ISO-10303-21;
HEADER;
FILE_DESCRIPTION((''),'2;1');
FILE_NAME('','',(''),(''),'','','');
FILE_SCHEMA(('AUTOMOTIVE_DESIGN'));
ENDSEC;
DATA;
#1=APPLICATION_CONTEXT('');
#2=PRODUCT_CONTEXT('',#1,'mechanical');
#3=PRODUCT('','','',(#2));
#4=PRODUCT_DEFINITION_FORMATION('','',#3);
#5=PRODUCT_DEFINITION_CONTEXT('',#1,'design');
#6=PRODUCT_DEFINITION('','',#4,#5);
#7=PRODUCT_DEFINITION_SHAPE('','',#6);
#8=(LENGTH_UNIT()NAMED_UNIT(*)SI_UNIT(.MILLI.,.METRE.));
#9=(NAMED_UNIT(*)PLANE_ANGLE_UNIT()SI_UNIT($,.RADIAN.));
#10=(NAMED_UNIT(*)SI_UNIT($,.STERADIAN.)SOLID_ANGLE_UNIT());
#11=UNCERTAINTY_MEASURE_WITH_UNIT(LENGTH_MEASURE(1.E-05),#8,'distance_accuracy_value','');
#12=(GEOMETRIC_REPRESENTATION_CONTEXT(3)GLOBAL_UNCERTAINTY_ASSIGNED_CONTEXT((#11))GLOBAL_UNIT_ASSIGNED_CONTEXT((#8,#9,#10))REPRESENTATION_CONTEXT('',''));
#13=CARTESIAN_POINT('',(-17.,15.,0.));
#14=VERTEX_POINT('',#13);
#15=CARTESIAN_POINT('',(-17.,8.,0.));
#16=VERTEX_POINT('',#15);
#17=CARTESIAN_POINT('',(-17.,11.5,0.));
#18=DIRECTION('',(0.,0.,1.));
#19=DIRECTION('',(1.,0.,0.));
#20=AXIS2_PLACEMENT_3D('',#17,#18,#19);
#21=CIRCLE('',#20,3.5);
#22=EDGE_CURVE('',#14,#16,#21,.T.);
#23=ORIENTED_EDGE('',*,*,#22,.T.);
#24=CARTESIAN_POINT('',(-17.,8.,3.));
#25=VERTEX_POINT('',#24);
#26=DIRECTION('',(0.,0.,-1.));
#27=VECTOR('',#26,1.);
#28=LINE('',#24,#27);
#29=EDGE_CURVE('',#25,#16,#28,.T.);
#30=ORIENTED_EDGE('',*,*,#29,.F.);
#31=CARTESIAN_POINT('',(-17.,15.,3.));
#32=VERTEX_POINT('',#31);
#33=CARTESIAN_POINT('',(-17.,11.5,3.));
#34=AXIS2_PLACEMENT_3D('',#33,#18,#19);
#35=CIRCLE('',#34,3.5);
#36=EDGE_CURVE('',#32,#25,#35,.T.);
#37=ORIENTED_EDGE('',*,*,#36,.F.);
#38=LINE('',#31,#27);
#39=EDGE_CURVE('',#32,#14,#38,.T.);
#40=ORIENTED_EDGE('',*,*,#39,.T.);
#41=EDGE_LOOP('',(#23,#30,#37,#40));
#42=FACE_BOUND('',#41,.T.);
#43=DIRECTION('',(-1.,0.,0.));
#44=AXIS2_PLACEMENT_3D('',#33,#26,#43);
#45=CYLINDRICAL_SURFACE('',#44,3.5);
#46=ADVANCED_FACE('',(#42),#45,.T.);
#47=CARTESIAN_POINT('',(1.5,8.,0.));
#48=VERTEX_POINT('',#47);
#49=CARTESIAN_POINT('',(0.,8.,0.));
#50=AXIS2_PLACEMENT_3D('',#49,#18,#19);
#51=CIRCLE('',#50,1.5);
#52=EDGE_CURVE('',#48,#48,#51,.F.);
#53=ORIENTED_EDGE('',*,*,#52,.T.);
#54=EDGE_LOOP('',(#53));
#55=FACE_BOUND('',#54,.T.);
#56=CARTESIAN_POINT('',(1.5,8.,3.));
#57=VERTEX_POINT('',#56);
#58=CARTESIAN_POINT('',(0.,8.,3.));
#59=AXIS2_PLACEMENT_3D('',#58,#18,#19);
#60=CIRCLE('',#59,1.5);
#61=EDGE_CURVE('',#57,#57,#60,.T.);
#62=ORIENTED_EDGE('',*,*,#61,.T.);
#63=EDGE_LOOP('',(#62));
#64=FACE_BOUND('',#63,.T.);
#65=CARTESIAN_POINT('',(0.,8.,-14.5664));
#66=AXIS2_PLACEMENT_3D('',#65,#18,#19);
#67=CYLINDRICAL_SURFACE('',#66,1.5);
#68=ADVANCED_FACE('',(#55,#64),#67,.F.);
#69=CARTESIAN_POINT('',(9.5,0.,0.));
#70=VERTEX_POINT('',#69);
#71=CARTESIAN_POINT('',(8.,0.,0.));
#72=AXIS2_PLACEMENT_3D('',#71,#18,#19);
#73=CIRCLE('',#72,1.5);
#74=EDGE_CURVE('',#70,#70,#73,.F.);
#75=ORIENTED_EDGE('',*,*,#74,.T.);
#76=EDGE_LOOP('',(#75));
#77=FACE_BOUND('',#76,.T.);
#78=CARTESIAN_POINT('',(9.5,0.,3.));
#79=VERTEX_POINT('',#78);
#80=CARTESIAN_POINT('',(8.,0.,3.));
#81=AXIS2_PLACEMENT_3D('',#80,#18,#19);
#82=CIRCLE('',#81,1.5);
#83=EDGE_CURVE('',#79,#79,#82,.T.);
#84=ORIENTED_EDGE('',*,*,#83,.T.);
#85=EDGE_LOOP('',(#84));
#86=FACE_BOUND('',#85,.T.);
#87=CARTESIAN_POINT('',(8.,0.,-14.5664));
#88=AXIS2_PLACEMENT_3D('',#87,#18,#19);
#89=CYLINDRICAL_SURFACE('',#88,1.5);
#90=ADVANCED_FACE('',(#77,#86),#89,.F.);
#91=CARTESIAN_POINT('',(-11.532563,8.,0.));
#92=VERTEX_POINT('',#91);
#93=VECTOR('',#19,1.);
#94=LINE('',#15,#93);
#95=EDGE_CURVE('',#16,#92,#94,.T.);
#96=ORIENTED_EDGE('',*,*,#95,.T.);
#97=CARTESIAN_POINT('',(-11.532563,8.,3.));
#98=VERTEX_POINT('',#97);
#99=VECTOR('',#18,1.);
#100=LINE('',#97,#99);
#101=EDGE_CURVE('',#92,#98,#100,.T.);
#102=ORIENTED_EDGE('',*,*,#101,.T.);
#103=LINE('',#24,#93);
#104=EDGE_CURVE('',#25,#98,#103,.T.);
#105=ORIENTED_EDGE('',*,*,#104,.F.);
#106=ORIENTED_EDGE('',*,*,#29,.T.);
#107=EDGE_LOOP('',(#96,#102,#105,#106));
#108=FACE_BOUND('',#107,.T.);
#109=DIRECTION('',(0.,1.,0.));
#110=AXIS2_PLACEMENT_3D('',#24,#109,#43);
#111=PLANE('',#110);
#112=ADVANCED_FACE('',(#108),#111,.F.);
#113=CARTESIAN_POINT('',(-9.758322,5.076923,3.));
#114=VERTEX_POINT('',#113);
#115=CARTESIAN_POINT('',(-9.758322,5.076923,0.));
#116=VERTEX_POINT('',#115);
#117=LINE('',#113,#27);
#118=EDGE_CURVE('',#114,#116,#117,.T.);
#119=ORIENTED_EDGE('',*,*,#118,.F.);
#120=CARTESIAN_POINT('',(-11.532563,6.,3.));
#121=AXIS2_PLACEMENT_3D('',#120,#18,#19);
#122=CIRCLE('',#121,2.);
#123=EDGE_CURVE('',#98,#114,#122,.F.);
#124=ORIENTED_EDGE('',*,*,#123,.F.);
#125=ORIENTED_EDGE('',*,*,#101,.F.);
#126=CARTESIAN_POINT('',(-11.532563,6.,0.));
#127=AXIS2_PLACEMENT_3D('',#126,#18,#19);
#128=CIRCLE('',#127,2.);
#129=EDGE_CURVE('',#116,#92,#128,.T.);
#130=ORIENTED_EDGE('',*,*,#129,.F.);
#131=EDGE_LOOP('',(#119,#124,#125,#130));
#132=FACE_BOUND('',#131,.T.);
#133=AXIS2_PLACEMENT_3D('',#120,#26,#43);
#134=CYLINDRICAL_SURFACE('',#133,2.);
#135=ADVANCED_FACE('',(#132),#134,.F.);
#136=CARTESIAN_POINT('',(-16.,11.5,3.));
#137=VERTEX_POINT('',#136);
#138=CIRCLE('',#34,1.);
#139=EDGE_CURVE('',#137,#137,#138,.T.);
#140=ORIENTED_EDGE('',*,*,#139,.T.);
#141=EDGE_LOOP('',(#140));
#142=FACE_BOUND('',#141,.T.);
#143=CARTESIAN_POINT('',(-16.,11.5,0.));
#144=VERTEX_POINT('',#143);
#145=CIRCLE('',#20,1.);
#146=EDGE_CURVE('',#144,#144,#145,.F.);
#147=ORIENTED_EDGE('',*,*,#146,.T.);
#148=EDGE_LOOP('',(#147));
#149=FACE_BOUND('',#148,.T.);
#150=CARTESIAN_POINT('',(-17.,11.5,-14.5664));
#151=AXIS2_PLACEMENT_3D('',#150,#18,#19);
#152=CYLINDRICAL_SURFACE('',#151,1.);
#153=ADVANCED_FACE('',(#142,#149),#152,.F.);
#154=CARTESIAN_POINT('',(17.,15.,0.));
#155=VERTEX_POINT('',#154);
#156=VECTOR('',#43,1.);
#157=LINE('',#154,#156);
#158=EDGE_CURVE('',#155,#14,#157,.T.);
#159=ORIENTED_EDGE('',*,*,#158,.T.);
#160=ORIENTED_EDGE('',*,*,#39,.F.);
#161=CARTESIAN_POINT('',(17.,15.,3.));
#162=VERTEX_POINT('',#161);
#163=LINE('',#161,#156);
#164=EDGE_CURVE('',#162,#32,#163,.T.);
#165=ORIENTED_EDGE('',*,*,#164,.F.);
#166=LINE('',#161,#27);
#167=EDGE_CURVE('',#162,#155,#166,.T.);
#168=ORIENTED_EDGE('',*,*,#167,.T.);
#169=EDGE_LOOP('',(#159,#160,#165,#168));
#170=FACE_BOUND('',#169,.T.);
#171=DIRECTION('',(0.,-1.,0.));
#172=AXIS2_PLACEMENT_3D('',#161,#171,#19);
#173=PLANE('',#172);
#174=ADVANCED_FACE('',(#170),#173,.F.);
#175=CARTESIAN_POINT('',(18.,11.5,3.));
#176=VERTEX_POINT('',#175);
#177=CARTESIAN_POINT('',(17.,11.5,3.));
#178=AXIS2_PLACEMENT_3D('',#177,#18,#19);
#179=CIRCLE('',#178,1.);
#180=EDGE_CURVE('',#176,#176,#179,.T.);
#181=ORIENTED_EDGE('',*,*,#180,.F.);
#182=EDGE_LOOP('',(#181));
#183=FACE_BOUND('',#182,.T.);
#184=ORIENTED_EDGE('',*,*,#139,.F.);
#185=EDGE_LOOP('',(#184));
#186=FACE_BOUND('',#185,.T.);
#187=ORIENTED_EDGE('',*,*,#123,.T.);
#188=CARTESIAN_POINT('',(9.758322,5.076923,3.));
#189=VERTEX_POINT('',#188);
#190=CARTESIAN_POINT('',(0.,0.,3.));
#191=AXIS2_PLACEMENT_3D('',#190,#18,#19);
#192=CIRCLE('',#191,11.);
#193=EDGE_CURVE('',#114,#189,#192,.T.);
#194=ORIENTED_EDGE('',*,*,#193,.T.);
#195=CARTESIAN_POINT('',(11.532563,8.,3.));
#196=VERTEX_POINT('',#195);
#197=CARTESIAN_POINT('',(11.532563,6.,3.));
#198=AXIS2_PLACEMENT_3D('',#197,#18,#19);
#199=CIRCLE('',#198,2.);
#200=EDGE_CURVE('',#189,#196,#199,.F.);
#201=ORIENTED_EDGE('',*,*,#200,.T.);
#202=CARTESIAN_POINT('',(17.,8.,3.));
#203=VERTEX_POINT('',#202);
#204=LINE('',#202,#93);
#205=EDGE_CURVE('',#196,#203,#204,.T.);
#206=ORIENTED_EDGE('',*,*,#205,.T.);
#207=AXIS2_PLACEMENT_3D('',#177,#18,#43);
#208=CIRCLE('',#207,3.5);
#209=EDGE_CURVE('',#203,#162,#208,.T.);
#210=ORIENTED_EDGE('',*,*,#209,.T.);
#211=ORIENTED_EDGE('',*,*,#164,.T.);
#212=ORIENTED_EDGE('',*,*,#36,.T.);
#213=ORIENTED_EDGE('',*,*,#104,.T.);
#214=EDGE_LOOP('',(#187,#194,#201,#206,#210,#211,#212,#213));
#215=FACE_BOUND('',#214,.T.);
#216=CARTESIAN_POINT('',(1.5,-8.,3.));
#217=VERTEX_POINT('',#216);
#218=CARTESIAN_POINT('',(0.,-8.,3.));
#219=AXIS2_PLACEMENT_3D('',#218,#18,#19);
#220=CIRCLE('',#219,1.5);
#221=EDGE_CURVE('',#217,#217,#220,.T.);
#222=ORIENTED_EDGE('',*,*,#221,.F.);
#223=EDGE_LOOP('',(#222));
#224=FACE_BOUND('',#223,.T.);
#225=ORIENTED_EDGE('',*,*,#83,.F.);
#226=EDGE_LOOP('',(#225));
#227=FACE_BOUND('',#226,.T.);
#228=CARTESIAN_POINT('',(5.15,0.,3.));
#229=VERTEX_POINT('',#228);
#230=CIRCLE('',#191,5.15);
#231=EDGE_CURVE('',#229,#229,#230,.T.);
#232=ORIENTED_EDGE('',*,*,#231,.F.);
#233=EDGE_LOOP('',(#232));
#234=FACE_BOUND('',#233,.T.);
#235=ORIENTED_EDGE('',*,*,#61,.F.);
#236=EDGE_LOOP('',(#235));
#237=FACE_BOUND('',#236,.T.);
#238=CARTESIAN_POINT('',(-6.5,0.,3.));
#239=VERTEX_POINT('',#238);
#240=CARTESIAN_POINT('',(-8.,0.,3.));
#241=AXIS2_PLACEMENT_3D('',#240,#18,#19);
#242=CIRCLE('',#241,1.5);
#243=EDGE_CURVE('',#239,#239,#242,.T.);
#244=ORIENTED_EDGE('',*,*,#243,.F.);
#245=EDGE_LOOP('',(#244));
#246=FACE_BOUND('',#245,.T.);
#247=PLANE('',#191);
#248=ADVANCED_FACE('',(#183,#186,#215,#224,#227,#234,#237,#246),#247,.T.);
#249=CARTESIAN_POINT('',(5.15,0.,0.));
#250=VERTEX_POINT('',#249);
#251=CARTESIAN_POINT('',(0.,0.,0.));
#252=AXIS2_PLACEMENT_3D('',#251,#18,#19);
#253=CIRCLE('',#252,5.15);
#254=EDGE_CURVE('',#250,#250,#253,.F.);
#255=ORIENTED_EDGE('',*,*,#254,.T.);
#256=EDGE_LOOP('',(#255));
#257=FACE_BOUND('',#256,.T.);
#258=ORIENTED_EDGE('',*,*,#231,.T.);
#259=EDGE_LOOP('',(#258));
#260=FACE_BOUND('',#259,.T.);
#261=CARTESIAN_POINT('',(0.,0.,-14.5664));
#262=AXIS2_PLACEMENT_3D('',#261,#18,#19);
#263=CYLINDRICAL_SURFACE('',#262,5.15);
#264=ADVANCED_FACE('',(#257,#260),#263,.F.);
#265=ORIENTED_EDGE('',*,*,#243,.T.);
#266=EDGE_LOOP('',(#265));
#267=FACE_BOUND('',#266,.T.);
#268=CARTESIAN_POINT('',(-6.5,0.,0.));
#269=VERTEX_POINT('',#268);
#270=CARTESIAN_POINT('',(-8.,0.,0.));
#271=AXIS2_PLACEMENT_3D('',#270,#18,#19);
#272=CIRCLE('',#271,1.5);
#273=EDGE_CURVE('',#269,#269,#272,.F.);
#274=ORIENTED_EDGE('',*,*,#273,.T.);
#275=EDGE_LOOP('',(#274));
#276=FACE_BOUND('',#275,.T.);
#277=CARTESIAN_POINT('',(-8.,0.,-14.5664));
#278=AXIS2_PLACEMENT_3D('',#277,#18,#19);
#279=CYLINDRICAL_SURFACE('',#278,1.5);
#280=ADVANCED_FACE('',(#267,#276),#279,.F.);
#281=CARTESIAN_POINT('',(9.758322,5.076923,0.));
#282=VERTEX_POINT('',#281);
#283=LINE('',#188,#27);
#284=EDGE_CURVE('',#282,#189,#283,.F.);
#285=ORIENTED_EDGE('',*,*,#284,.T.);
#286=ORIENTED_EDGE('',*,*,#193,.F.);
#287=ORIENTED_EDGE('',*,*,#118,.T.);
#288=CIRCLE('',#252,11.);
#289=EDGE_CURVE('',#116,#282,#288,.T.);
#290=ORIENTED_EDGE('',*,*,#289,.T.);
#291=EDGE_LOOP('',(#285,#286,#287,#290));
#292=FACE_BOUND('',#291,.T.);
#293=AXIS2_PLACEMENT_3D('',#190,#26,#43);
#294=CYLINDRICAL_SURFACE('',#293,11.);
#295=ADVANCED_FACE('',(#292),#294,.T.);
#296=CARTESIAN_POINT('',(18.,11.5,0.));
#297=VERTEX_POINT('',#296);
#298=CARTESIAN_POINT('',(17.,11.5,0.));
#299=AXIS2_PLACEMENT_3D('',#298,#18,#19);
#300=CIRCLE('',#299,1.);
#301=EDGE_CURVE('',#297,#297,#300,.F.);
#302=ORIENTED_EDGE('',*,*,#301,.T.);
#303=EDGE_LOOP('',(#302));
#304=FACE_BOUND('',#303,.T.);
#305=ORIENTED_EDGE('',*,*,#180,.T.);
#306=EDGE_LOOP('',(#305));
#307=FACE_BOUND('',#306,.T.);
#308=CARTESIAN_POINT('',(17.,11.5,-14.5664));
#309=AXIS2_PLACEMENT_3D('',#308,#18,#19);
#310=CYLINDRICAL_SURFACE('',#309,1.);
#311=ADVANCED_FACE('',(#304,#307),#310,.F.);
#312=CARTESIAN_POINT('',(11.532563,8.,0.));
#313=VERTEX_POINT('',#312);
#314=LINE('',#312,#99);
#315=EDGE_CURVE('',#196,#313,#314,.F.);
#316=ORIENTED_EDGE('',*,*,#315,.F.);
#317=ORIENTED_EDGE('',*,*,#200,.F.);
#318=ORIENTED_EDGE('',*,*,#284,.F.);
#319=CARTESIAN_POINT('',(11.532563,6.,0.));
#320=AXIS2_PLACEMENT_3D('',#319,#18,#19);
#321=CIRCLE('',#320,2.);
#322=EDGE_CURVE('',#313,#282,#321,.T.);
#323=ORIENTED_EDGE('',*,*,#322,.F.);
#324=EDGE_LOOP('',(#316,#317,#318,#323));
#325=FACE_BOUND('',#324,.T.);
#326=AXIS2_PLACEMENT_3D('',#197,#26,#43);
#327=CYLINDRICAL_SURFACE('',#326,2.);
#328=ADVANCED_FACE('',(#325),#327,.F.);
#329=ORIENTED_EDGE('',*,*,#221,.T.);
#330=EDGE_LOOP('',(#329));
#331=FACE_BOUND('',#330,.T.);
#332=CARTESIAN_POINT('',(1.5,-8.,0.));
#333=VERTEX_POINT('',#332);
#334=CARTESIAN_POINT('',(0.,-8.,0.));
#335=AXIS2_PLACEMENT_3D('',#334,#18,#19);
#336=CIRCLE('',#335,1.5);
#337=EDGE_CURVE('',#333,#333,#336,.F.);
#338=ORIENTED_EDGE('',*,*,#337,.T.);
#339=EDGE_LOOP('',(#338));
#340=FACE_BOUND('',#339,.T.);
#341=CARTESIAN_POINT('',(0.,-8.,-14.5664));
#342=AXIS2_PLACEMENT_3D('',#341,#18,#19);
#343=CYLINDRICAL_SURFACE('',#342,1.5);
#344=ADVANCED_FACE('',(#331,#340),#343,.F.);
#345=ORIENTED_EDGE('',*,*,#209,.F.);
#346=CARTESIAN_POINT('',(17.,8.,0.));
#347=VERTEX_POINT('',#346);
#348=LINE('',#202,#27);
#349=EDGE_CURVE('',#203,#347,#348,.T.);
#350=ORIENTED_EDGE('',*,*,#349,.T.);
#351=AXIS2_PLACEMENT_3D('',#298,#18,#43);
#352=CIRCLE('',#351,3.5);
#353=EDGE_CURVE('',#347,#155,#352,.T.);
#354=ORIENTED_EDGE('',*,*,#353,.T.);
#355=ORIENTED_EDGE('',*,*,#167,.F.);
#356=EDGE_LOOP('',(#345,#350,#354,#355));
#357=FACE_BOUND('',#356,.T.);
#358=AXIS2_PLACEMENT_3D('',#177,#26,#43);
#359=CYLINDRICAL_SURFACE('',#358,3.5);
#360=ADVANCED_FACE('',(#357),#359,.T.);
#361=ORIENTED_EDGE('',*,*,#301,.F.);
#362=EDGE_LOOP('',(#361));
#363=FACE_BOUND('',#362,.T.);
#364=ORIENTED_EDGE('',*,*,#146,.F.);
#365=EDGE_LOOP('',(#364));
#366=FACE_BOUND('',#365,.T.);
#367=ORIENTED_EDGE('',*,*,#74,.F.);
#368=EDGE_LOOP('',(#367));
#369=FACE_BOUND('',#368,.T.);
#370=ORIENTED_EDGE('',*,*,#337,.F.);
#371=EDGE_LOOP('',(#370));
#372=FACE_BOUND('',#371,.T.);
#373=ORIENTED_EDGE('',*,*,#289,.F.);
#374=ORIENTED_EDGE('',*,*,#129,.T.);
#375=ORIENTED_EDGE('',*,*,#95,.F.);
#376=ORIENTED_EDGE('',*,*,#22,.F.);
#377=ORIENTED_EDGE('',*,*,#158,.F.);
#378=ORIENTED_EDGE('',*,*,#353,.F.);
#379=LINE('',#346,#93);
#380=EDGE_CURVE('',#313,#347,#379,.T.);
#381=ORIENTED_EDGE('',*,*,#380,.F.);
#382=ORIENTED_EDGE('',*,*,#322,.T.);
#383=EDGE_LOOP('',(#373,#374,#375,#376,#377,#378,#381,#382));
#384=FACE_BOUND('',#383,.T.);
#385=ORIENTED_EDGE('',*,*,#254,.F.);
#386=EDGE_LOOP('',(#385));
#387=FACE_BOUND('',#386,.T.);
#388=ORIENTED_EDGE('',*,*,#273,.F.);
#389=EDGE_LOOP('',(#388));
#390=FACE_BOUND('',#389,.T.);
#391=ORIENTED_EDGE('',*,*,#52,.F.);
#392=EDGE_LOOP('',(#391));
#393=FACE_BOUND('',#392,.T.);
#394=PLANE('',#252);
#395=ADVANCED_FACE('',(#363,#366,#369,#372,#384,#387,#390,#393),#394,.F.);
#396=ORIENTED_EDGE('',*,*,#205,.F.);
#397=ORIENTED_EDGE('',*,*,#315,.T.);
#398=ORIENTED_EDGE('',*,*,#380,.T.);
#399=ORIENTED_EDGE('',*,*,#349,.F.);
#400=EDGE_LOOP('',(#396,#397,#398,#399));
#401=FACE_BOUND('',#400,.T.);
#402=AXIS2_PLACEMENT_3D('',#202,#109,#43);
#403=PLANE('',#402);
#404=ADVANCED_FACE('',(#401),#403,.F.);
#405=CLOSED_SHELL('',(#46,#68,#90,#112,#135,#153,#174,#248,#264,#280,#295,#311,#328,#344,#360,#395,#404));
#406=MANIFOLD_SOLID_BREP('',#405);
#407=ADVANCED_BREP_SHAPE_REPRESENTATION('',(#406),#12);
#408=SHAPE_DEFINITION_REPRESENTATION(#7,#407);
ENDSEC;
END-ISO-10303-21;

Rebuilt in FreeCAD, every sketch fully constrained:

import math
import FreeCAD as App
import Part
import Sketcher


def edges_at(feature, points):
    """Names of the edges that pass closest to the given points."""
    edges = feature.Shape.Edges
    near = lambda p: min(range(len(edges)), key=lambda i: edges[i].distToShape(Part.Vertex(*p))[0])
    return sorted({f"Edge{near(p) + 1}" for p in points})

doc = App.newDocument("Part")
body = doc.addObject("PartDesign::Body", "Body")

# Sketch on XY plane
sketch1 = doc.addObject("Sketcher::SketchObject", "Sketch")
body.addObject(sketch1)
sketch1.AttachmentSupport = (doc.XY_Plane, [""])
sketch1.MapMode = "FlatFace"
sketch1.addGeometry(Part.LineSegment(App.Vector(-17, 8, 0), App.Vector(-7.5, 8, 0)), False)
sketch1.addGeometry(Part.ArcOfCircle(Part.Circle(App.Vector(0, 0, 0), App.Vector(0, 0, 1), 11), math.radians(133), math.radians(407)), False)
sketch1.addGeometry(Part.LineSegment(App.Vector(7.5, 8, 0), App.Vector(17, 8, 0)), False)
sketch1.addGeometry(Part.ArcOfCircle(Part.Circle(App.Vector(17, 11.5, 0), App.Vector(0, 0, 1), 3.5), math.radians(-90), math.radians(90)), False)
sketch1.addGeometry(Part.LineSegment(App.Vector(17, 15, 0), App.Vector(-17, 15, 0)), False)
sketch1.addGeometry(Part.ArcOfCircle(Part.Circle(App.Vector(-17, 11.5, 0), App.Vector(0, 0, 1), 3.5), math.radians(90), math.radians(270)), False)
sketch1.addConstraint(Sketcher.Constraint("Coincident", 0, 2, 1, 1))
sketch1.addConstraint(Sketcher.Constraint("Coincident", 1, 2, 2, 1))
sketch1.addConstraint(Sketcher.Constraint("Tangent", 2, 2, 3, 1))
sketch1.addConstraint(Sketcher.Constraint("Tangent", 3, 2, 4, 1))
sketch1.addConstraint(Sketcher.Constraint("Tangent", 4, 2, 5, 1))
sketch1.addConstraint(Sketcher.Constraint("Tangent", 5, 2, 0, 1))
sketch1.addConstraint(Sketcher.Constraint("Horizontal", 0))
sketch1.addConstraint(Sketcher.Constraint("Horizontal", 2))
sketch1.addConstraint(Sketcher.Constraint("Horizontal", 4))
sketch1.addConstraint(Sketcher.Constraint("Coincident", 1, 3, -1, 1))
sketch1.addConstraint(Sketcher.Constraint("Equal", 3, 5))
sketch1.addConstraint(Sketcher.Constraint("Equal", 0, 2))
sketch1.addConstraint(Sketcher.Constraint("Radius", 1, 11.0))
sketch1.addConstraint(Sketcher.Constraint("Radius", 3, 3.5))
sketch1.addConstraint(Sketcher.Constraint("DistanceX", 4, 2, 4, 1, 34.0))
sketch1.addConstraint(Sketcher.Constraint("DistanceY", -1, 1, 0, 2, 8.0))
pad1 = doc.addObject("PartDesign::Pad", "Pad")
body.addObject(pad1)
pad1.Profile = sketch1
pad1.Length = 3

# Sketch on XY plane
sketch2 = doc.addObject("Sketcher::SketchObject", "Sketch001")
body.addObject(sketch2)
sketch2.AttachmentSupport = (doc.XY_Plane, [""])
sketch2.MapMode = "FlatFace"
sketch2.AttachmentOffset = App.Placement(App.Vector(0, 0, 3), App.Rotation())
sketch2.addGeometry(Part.Circle(App.Vector(0, 0, 0), App.Vector(0, 0, 1), 5.2), False)
sketch2.addGeometry(Part.Circle(App.Vector(8, 0, 0), App.Vector(0, 0, 1), 1.5), False)
sketch2.addGeometry(Part.Circle(App.Vector(0, -8, 0), App.Vector(0, 0, 1), 1.5), False)
sketch2.addGeometry(Part.Circle(App.Vector(-8, 0, 0), App.Vector(0, 0, 1), 1.5), False)
sketch2.addGeometry(Part.Circle(App.Vector(0, 8, 0), App.Vector(0, 0, 1), 1.5), False)
sketch2.addGeometry(Part.Circle(App.Vector(-17, 11.5, 0), App.Vector(0, 0, 1), 1), False)
sketch2.addGeometry(Part.Circle(App.Vector(17, 11.5, 0), App.Vector(0, 0, 1), 1), False)
sketch2.addConstraint(Sketcher.Constraint("Coincident", 0, 3, -1, 1))
sketch2.addConstraint(Sketcher.Constraint("Equal", 1, 2))
sketch2.addConstraint(Sketcher.Constraint("Equal", 2, 3))
sketch2.addConstraint(Sketcher.Constraint("Equal", 3, 4))
sketch2.addConstraint(Sketcher.Constraint("Equal", 5, 6))
sketch2.addConstraint(Sketcher.Constraint("Symmetric", 1, 3, 3, 3, -1, 1))
sketch2.addConstraint(Sketcher.Constraint("Symmetric", 2, 3, 4, 3, -1, 1))
sketch2.addConstraint(Sketcher.Constraint("Symmetric", 5, 3, 6, 3, -2))
sketch2.addConstraint(Sketcher.Constraint("PointOnObject", 1, 3, -1))
sketch2.addConstraint(Sketcher.Constraint("PointOnObject", 2, 3, -2))
sketch2.addConstraint(Sketcher.Constraint("Diameter", 1, 3.0))
sketch2.addConstraint(Sketcher.Constraint("Diameter", 5, 2.0))
sketch2.addConstraint(Sketcher.Constraint("Diameter", 0, 10.3))
sketch2.addConstraint(Sketcher.Constraint("DistanceX", -1, 1, 1, 3, 8.0))
sketch2.addConstraint(Sketcher.Constraint("DistanceY", 2, 3, -1, 1, 8.0))
sketch2.addConstraint(Sketcher.Constraint("DistanceX", 5, 3, -1, 1, 17.0))
sketch2.addConstraint(Sketcher.Constraint("DistanceY", -1, 1, 5, 3, 11.5))
pocket1 = doc.addObject("PartDesign::Pocket", "Pocket")
body.addObject(pocket1)
pocket1.Profile = sketch2
pocket1.Length = 3
doc.recompute()

fillet = doc.addObject("PartDesign::Fillet", "Fillet")
body.addObject(fillet)
fillet.Base = (pocket1, edges_at(pocket1, [(-7.55, 8, 1.5), (7.55, 8, 1.5)]))
fillet.Radius = 2

doc.recompute()
